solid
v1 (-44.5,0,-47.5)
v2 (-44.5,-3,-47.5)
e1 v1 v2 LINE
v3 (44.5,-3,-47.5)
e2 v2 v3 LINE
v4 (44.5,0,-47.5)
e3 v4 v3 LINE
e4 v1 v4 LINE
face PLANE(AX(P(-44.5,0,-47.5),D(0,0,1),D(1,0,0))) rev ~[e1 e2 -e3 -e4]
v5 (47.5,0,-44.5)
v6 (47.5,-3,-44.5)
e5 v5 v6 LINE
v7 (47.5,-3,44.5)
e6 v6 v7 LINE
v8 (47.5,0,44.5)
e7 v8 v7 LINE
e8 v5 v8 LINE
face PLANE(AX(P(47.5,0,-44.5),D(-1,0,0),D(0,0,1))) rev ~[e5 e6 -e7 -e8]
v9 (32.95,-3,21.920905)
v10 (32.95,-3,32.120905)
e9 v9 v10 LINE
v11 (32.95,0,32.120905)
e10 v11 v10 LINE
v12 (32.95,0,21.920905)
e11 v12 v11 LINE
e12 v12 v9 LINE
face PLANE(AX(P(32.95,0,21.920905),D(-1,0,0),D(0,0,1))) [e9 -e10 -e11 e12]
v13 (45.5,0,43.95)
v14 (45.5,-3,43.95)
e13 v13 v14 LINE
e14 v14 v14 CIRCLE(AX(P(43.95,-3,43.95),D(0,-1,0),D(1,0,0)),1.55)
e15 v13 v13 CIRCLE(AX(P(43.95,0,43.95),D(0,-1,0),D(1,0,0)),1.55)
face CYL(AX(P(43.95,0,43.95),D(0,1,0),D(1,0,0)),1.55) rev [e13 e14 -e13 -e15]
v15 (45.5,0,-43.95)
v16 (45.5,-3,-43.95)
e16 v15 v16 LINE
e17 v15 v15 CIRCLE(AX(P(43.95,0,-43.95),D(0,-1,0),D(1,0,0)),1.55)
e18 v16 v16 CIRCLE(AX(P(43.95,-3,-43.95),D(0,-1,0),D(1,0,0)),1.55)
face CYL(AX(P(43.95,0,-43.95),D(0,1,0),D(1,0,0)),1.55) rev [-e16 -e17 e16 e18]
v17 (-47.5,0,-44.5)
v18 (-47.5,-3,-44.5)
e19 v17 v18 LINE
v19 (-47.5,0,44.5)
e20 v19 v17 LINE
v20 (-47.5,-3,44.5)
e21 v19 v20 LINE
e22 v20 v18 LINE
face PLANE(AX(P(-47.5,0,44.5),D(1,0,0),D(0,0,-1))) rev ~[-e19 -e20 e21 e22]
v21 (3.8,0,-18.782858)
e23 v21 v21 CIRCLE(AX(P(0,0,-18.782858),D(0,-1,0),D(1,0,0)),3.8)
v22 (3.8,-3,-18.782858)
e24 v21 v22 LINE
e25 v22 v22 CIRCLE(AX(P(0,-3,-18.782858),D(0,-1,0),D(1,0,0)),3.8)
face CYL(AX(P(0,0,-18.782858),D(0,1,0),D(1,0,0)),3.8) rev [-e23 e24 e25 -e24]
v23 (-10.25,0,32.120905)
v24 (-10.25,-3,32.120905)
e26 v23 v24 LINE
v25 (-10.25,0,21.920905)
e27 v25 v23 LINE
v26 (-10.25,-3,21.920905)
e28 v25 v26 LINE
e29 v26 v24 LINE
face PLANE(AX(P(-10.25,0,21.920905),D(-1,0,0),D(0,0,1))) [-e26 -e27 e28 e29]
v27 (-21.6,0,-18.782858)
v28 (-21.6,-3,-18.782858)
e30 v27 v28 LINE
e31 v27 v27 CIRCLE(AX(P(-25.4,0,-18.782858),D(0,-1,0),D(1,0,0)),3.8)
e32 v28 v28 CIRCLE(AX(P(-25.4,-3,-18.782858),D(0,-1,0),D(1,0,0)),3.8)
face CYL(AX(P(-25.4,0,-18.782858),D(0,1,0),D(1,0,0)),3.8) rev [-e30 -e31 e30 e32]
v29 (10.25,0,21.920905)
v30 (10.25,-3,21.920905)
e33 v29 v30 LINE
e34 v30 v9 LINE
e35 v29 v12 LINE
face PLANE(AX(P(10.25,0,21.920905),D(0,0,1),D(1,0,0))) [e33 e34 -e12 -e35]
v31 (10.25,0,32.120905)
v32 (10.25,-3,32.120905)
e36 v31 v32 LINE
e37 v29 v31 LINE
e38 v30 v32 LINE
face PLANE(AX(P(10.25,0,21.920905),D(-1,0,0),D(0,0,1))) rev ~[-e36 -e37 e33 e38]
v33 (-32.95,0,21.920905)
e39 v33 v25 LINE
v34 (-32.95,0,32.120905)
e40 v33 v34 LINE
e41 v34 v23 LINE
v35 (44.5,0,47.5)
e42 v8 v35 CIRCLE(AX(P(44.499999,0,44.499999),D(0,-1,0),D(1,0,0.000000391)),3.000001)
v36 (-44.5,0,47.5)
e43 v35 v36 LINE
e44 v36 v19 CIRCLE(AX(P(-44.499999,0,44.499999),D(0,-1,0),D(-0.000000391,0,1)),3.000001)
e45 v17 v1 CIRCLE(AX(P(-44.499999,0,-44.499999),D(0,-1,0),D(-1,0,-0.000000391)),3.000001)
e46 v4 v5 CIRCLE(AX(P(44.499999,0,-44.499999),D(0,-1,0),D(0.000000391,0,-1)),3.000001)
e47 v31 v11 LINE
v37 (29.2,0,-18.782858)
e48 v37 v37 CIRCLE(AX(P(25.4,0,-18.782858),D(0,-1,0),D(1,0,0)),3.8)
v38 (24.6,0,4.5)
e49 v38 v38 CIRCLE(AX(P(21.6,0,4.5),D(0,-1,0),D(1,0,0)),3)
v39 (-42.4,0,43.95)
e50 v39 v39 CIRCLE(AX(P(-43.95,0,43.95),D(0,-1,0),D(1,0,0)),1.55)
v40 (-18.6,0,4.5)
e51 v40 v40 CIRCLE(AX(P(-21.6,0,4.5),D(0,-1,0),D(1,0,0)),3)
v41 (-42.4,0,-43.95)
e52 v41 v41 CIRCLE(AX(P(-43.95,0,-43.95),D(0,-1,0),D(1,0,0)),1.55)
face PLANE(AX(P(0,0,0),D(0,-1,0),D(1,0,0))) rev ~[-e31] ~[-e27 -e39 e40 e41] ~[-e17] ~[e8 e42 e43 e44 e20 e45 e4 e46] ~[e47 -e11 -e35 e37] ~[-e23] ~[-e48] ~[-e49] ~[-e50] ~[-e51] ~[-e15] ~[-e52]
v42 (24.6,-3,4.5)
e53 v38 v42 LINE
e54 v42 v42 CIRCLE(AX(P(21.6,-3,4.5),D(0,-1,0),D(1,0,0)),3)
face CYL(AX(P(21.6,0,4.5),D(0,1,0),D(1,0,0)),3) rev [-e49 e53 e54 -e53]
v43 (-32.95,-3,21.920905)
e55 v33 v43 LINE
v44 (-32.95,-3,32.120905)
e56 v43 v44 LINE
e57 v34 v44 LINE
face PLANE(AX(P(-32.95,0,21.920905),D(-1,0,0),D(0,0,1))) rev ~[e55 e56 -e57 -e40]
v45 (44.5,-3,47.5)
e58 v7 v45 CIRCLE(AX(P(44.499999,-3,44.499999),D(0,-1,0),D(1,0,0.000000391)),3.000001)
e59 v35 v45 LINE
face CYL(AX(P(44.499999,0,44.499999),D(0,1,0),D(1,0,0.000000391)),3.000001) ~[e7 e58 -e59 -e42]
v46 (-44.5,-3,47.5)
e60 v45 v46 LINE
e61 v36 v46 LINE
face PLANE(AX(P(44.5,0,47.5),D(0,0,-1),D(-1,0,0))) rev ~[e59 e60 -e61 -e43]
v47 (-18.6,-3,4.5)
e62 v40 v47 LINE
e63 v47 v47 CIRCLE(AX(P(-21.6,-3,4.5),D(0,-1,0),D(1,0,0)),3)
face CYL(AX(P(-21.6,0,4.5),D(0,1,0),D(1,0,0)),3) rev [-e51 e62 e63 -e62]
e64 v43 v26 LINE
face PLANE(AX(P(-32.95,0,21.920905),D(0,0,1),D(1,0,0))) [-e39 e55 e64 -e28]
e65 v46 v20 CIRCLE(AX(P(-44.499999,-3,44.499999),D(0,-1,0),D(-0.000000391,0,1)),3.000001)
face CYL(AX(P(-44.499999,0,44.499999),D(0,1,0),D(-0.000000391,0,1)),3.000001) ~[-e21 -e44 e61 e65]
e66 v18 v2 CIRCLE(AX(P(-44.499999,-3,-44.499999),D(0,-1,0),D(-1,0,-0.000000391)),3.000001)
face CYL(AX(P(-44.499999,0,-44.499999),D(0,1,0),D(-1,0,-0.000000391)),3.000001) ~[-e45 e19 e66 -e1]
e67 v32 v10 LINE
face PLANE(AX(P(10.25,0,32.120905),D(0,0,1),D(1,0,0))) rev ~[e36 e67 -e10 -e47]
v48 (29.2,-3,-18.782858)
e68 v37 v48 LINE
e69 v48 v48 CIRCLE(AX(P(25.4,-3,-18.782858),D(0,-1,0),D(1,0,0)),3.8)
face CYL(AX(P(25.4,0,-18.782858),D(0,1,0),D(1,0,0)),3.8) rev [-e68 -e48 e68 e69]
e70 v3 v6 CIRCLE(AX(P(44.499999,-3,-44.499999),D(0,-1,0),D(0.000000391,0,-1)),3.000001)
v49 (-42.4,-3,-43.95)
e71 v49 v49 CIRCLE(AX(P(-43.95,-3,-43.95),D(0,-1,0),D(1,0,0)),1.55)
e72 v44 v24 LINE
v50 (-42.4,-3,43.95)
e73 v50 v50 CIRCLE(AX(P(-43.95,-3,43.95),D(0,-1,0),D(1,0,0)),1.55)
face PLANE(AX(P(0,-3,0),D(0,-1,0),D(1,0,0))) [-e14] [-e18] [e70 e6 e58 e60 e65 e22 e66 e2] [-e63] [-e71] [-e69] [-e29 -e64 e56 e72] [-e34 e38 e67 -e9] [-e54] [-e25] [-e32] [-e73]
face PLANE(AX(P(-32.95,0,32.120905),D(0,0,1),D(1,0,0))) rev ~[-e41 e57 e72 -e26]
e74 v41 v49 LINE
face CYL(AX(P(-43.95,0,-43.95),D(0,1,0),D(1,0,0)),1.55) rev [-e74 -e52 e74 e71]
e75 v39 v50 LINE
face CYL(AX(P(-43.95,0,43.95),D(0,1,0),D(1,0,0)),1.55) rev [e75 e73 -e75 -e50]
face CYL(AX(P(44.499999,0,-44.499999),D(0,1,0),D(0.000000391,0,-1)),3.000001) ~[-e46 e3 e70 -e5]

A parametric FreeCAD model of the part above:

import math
import FreeCAD as App
import Part
import Sketcher

V = App.Vector
Q = App.Units.Quantity


def add_polygon(sketch, points):
    """Adds a closed chain of lines whose ends are joined by coincident constraints."""
    first, n = sketch.GeometryCount, len(points)
    for a, b in zip(points, points[1:] + points[:1]):
        sketch.addGeometry(Part.LineSegment(App.Vector(*a, 0), App.Vector(*b, 0)), False)
    for i in range(n):
        sketch.addConstraint(Sketcher.Constraint("Coincident", first + i, 2, first + (i + 1) % n, 1))

doc = App.newDocument("Part")
body = doc.addObject("PartDesign::Body", "Body")

sketch1 = body.newObject("Sketcher::SketchObject", "Sketch")
sketch1.AttachmentSupport = (doc.getObject("XZ_Plane"), [""])
sketch1.MapMode = "FlatFace"
sketch1.addGeometry(Part.LineSegment(V(-44.5, -47.5, 0), V(44.5, -47.5, 0)), False)
sketch1.addGeometry(Part.ArcOfCircle(Part.Circle(V(44.499999, -44.499999, 0), V(0, 0, 1), 3.000001), math.radians(-89.999978), math.radians(-0.000022)), False)
sketch1.addGeometry(Part.LineSegment(V(47.5, -44.5, 0), V(47.5, 44.5, 0)), False)
sketch1.addGeometry(Part.ArcOfCircle(Part.Circle(V(44.499999, 44.499999, 0), V(0, 0, 1), 3.000001), math.radians(0.000022), math.radians(89.999978)), False)
sketch1.addGeometry(Part.LineSegment(V(44.5, 47.5, 0), V(-44.5, 47.5, 0)), False)
sketch1.addGeometry(Part.ArcOfCircle(Part.Circle(V(-44.499999, 44.499999, 0), V(0, 0, 1), 3.000001), math.radians(90.000022), math.radians(179.999978)), False)
sketch1.addGeometry(Part.LineSegment(V(-47.5, 44.5, 0), V(-47.5, -44.5, 0)), False)
sketch1.addGeometry(Part.ArcOfCircle(Part.Circle(V(-44.499999, -44.499999, 0), V(0, 0, 1), 3.000001), math.radians(-179.999978), math.radians(-90.000022)), False)
sketch1.addGeometry(Part.Circle(V(-43.95, -43.95, 0), V(0, 0, 1), 1.55), False)
sketch1.addGeometry(Part.Circle(V(-25.4, -18.782858, 0), V(0, 0, 1), 3.8), False)
sketch1.addGeometry(Part.Circle(V(43.95, -43.95, 0), V(0, 0, 1), 1.55), False)
sketch1.addGeometry(Part.Circle(V(0, -18.782858, 0), V(0, 0, 1), 3.8), False)
sketch1.addGeometry(Part.Circle(V(25.4, -18.782858, 0), V(0, 0, 1), 3.8), False)
sketch1.addGeometry(Part.Circle(V(-21.6, 4.5, 0), V(0, 0, 1), 3), False)
sketch1.addGeometry(Part.Circle(V(-43.95, 43.95, 0), V(0, 0, 1), 1.55), False)
add_polygon(sketch1, [(-10.25, 21.920905), (-32.95, 21.920905), (-32.95, 32.120905), (-10.25, 32.120905)])
sketch1.addGeometry(Part.Circle(V(21.6, 4.5, 0), V(0, 0, 1), 3), False)
add_polygon(sketch1, [(32.95, 21.920905), (10.25, 21.920905), (10.25, 32.120905), (32.95, 32.120905)])
sketch1.addGeometry(Part.Circle(V(43.95, 43.95, 0), V(0, 0, 1), 1.55), False)
sketch1.addConstraint([
    Sketcher.Constraint("Tangent", 0, 2, 1, 1),
    Sketcher.Constraint("Tangent", 1, 2, 2, 1),
    Sketcher.Constraint("Tangent", 2, 2, 3, 1),
    Sketcher.Constraint("Tangent", 3, 2, 4, 1),
    Sketcher.Constraint("Tangent", 4, 2, 5, 1),
    Sketcher.Constraint("Tangent", 5, 2, 6, 1),
    Sketcher.Constraint("Tangent", 6, 2, 7, 1),
    Sketcher.Constraint("Tangent", 7, 2, 0, 1),
    Sketcher.Constraint("Horizontal", 0),
    Sketcher.Constraint("Vertical", 2),
    Sketcher.Constraint("Horizontal", 4),
    Sketcher.Constraint("Vertical", 6),
    Sketcher.Constraint("Horizontal", 15),
    Sketcher.Constraint("Vertical", 16),
    Sketcher.Constraint("Horizontal", 17),
    Sketcher.Constraint("Vertical", 18),
    Sketcher.Constraint("Horizontal", 20),
    Sketcher.Constraint("Vertical", 21),
    Sketcher.Constraint("Horizontal", 22),
    Sketcher.Constraint("Vertical", 23),
    Sketcher.Constraint("Equal", 1, 3),
    Sketcher.Constraint("Equal", 3, 5),
    Sketcher.Constraint("Equal", 5, 7),
    Sketcher.Constraint("Equal", 8, 10),
    Sketcher.Constraint("Equal", 9, 11),
    Sketcher.Constraint("Equal", 11, 12),
    Sketcher.Constraint("Equal", 7, 13),
    Sketcher.Constraint("Equal", 10, 14),
    Sketcher.Constraint("Equal", 13, 19),
    Sketcher.Constraint("Equal", 14, 24),
    Sketcher.Constraint("Symmetric", 1, 3, 5, 3, -1, 1),
    Sketcher.Constraint("Symmetric", 10, 3, 14, 3, -1, 1),
    Sketcher.Constraint("Symmetric", 8, 3, 24, 3, -1, 1),
    Sketcher.Constraint("Symmetric", 8, 3, 10, 3, -2),
    Sketcher.Constraint("Symmetric", 9, 3, 12, 3, -2),
    Sketcher.Constraint("Symmetric", 13, 3, 19, 3, -2),
    Sketcher.Constraint("Symmetric", 18, 2, 20, 2, -2),
    Sketcher.Constraint("Symmetric", 16, 2, 22, 2, -2),
    Sketcher.Constraint("PointOnObject", 11, 3, -2),
    Sketcher.Constraint("Horizontal", 9, 3, 11, 3),
    Sketcher.Constraint("Equal", 4, 2),
    Sketcher.Constraint("Diameter", 13, Q("6 mm")),
    Sketcher.Constraint("Diameter", 8, Q("3.1 mm")),
    Sketcher.Constraint("Diameter", 9, Q("7.6 mm")),
    Sketcher.Constraint("DistanceX", 0, 1, 0, 2, Q("89 mm")),
    Sketcher.Constraint("DistanceX", 15, 2, 15, 1, Q("22.7 mm")),
    Sketcher.Constraint("DistanceY", 16, 1, 16, 2, Q("10.2 mm")),
    Sketcher.Constraint("DistanceY", 13, 3, 5, 3, Q("39.999999 mm")),
    Sketcher.Constraint("DistanceX", 13, 3, 12, 3, Q("47 mm")),
    Sketcher.Constraint("DistanceX", 14, 3, 15, 2, Q("11 mm")),
    Sketcher.Constraint("DistanceX", 9, 3, -1, 1, Q("25.4 mm")),
    Sketcher.Constraint("DistanceX", 8, 3, 10, 3, Q("87.9 mm")),
    Sketcher.Constraint("DistanceY", 8, 3, 14, 3, Q("87.9 mm")),
    Sketcher.Constraint("DistanceY", 9, 3, -1, 1, Q("18.782858 mm")),
    Sketcher.Constraint("DistanceY", -1, 1, 15, 2, Q("21.920905 mm")),
])
pad1 = body.newObject("PartDesign::Pad", "Pad")
pad1.Profile = sketch1
pad1.Length = 3

doc.recompute()
